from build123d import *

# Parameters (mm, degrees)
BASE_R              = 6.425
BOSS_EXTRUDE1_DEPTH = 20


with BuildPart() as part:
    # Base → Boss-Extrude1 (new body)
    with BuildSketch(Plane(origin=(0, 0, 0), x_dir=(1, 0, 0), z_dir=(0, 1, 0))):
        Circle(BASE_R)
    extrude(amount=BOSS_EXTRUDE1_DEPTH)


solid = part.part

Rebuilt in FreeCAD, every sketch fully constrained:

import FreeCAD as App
import Part
import Sketcher

doc = App.newDocument("Part")
body = doc.addObject("PartDesign::Body", "Body")

sketch1 = body.newObject("Sketcher::SketchObject", "Sketch")
sketch1.AttachmentSupport = (doc.getObject("XZ_Plane"), [""])
sketch1.MapMode = "FlatFace"
sketch1.addGeometry(Part.Circle(App.Vector(0, 0, 0), App.Vector(0, 0, 1), 6), False)
sketch1.addConstraint(Sketcher.Constraint("Coincident", 0, 3, -1, 1))
sketch1.addConstraint(Sketcher.Constraint("Diameter", 0, 12.85))
pad1 = body.newObject("PartDesign::Pad", "Pad")
pad1.Profile = sketch1
pad1.Length = 20
pad1.Reversed = True

doc.recompute()
